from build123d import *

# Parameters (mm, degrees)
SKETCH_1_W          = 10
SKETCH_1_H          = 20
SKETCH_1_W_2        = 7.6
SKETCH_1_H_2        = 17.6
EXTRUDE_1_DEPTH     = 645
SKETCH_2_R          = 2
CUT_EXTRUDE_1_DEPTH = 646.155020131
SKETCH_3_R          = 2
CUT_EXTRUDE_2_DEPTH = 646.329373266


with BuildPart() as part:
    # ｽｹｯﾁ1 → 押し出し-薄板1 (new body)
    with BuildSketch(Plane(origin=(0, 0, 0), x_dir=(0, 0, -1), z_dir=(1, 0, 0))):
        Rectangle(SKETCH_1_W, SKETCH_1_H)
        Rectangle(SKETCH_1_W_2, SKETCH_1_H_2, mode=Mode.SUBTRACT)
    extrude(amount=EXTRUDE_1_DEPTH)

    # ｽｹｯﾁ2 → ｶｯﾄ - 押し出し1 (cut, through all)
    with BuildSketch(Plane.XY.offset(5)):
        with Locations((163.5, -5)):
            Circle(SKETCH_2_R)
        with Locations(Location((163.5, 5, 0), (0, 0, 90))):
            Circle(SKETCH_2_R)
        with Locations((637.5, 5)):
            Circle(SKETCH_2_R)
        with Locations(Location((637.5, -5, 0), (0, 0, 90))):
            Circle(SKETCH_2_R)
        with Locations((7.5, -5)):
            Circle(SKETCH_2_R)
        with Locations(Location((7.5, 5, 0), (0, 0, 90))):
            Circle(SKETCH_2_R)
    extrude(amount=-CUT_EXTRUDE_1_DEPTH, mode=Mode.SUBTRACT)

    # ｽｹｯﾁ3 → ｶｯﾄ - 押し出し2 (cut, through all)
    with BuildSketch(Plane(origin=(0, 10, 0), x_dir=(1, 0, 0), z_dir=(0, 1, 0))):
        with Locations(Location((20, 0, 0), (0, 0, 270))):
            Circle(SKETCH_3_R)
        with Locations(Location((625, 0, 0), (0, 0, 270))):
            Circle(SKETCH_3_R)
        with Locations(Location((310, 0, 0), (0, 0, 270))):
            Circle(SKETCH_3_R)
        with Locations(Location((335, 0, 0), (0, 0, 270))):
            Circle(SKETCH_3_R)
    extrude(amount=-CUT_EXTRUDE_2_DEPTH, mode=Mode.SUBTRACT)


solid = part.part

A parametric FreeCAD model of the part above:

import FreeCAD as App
import Part
import Sketcher
from FreeCAD import Vector
Q = App.Units.Quantity

doc = App.newDocument("Part")
params = doc.addObject("Spreadsheet::Sheet", "Params")
for row, (alias, value) in enumerate([
    ("sketch1_width", "20 mm"),
    ("sketch1_height", "10 mm"),
    ("sketch1_width2", "17.6 mm"),
    ("sketch1_height2", "7.6 mm"),
    ("pad1_length", "645 mm"),
    ("sketch2_diameter", "4 mm"),
    ("sketch3_diameter", "4 mm"),
], start=1):
    params.set(f"A{row}", alias)
    params.set(f"B{row}", "=" + value)
    params.setAlias(f"B{row}", alias)

body = doc.addObject("PartDesign::Body", "Body")

sketch1 = doc.addObject("Sketcher::SketchObject", "Sketch")
body.addObject(sketch1)
sketch1.AttachmentSupport = (doc.YZ_Plane, [""])
sketch1.MapMode = "FlatFace"
sketch1.addGeometry([
    Part.LineSegment(Vector(10, 5, 0), Vector(-10, 5, 0)),
    Part.LineSegment(Vector(-10, 5, 0), Vector(-10, -5, 0)),
    Part.LineSegment(Vector(-10, -5, 0), Vector(10, -5, 0)),
    Part.LineSegment(Vector(10, -5, 0), Vector(10, 5, 0)),
    Part.LineSegment(Vector(-9, -4, 0), Vector(-9, 4, 0)),
    Part.LineSegment(Vector(-9, 4, 0), Vector(9, 4, 0)),
    Part.LineSegment(Vector(9, 4, 0), Vector(9, -4, 0)),
    Part.LineSegment(Vector(9, -4, 0), Vector(-9, -4, 0)),
], False)
sketch1.addConstraint([
    Sketcher.Constraint("Coincident", 0, 2, 1, 1),
    Sketcher.Constraint("Coincident", 1, 2, 2, 1),
    Sketcher.Constraint("Coincident", 2, 2, 3, 1),
    Sketcher.Constraint("Coincident", 3, 2, 0, 1),
    Sketcher.Constraint("Coincident", 4, 2, 5, 1),
    Sketcher.Constraint("Coincident", 5, 2, 6, 1),
    Sketcher.Constraint("Coincident", 6, 2, 7, 1),
    Sketcher.Constraint("Coincident", 7, 2, 4, 1),
    Sketcher.Constraint("Horizontal", 0),
    Sketcher.Constraint("Vertical", 1),
    Sketcher.Constraint("Horizontal", 2),
    Sketcher.Constraint("Vertical", 3),
    Sketcher.Constraint("Vertical", 4),
    Sketcher.Constraint("Horizontal", 5),
    Sketcher.Constraint("Vertical", 6),
    Sketcher.Constraint("Horizontal", 7),
    Sketcher.Constraint("Symmetric", 0, 2, 2, 2, -1, 1),
    Sketcher.Constraint("Symmetric", 4, 2, 6, 2, -1, 1),
    Sketcher.Constraint("DistanceX", 0, 2, 0, 1, Q("20 mm")),
    Sketcher.Constraint("DistanceY", 1, 2, 1, 1, Q("10 mm")),
    Sketcher.Constraint("DistanceX", 5, 1, 5, 2, Q("17.6 mm")),
    Sketcher.Constraint("DistanceY", 4, 1, 4, 2, Q("7.6 mm")),
])
sketch1.setExpression("Constraints[18]", "Params.sketch1_width")
sketch1.setExpression("Constraints[19]", "Params.sketch1_height")
sketch1.setExpression("Constraints[20]", "Params.sketch1_width2")
sketch1.setExpression("Constraints[21]", "Params.sketch1_height2")
pad1 = doc.addObject("PartDesign::Pad", "Pad")
body.addObject(pad1)
pad1.Profile = sketch1
pad1.setExpression("Length", "Params.pad1_length")

sketch2 = doc.addObject("Sketcher::SketchObject", "Sketch001")
body.addObject(sketch2)
sketch2.AttachmentSupport = (doc.XY_Plane, [""])
sketch2.MapMode = "FlatFace"
sketch2.AttachmentOffset = App.Placement(Vector(0, 0, 5), App.Rotation())
sketch2.addGeometry([
    Part.Circle(Vector(163.5, -5, 0), Vector(0, 0, 1), 2),
    Part.Circle(Vector(163.5, 5, 0), Vector(0, 0, 1), 2),
    Part.Circle(Vector(637.5, 5, 0), Vector(0, 0, 1), 2),
    Part.Circle(Vector(637.5, -5, 0), Vector(0, 0, 1), 2),
    Part.Circle(Vector(7.5, -5, 0), Vector(0, 0, 1), 2),
    Part.Circle(Vector(7.5, 5, 0), Vector(0, 0, 1), 2),
], False)
sketch2.addConstraint([
    Sketcher.Constraint("Equal", 0, 1),
    Sketcher.Constraint("Equal", 1, 2),
    Sketcher.Constraint("Equal", 2, 3),
    Sketcher.Constraint("Equal", 3, 4),
    Sketcher.Constraint("Equal", 4, 5),
    Sketcher.Constraint("Symmetric", 0, 3, 1, 3, -1),
    Sketcher.Constraint("Symmetric", 2, 3, 3, 3, -1),
    Sketcher.Constraint("Symmetric", 4, 3, 5, 3, -1),
    Sketcher.Constraint("Horizontal", 1, 3, 2, 3),
    Sketcher.Constraint("Horizontal", 3, 3, 4, 3),
    Sketcher.Constraint("Diameter", 0, Q("4 mm")),
    Sketcher.Constraint("DistanceY", 0, 3, -1, 1, Q("5 mm")),
    Sketcher.Constraint("DistanceX", 1, 3, 2, 3, Q("474 mm")),
    Sketcher.Constraint("DistanceX", 4, 3, 0, 3, Q("156 mm")),
    Sketcher.Constraint("DistanceX", -1, 1, 0, 3, Q("163.5 mm")),
])
sketch2.setExpression("Constraints[10]", "Params.sketch2_diameter")
pocket1 = doc.addObject("PartDesign::Pocket", "Pocket")
body.addObject(pocket1)
pocket1.Profile = sketch2
pocket1.Type = "ThroughAll"

sketch3 = doc.addObject("Sketcher::SketchObject", "Sketch002")
body.addObject(sketch3)
sketch3.AttachmentSupport = (doc.XZ_Plane, [""])
sketch3.MapMode = "FlatFace"
sketch3.AttachmentOffset = App.Placement(Vector(0, 0, -10), App.Rotation())
sketch3.addGeometry([
    Part.Circle(Vector(20, 0, 0), Vector(0, 0, 1), 2),
    Part.Circle(Vector(625, 0, 0), Vector(0, 0, 1), 2),
    Part.Circle(Vector(310, 0, 0), Vector(0, 0, 1), 2),
    Part.Circle(Vector(335, 0, 0), Vector(0, 0, 1), 2),
], False)
sketch3.addConstraint([
    Sketcher.Constraint("Equal", 0, 1),
    Sketcher.Constraint("Equal", 1, 2),
    Sketcher.Constraint("Equal", 2, 3),
    Sketcher.Constraint("PointOnObject", 0, 3, -1),
    Sketcher.Constraint("PointOnObject", 1, 3, -1),
    Sketcher.Constraint("PointOnObject", 2, 3, -1),
    Sketcher.Constraint("PointOnObject", 3, 3, -1),
    Sketcher.Constraint("Diameter", 0, Q("4 mm")),
    Sketcher.Constraint("DistanceX", -1, 1, 0, 3, Q("20 mm")),
    Sketcher.Constraint("DistanceX", -1, 1, 1, 3, Q("625 mm")),
    Sketcher.Constraint("DistanceX", -1, 1, 2, 3, Q("310 mm")),
    Sketcher.Constraint("DistanceX", -1, 1, 3, 3, Q("335 mm")),
])
sketch3.setExpression("Constraints[7]", "Params.sketch3_diameter")
pocket2 = doc.addObject("PartDesign::Pocket", "Pocket001")
body.addObject(pocket2)
pocket2.Profile = sketch3
pocket2.Type = "ThroughAll"
pocket2.Reversed = True

doc.recompute()
